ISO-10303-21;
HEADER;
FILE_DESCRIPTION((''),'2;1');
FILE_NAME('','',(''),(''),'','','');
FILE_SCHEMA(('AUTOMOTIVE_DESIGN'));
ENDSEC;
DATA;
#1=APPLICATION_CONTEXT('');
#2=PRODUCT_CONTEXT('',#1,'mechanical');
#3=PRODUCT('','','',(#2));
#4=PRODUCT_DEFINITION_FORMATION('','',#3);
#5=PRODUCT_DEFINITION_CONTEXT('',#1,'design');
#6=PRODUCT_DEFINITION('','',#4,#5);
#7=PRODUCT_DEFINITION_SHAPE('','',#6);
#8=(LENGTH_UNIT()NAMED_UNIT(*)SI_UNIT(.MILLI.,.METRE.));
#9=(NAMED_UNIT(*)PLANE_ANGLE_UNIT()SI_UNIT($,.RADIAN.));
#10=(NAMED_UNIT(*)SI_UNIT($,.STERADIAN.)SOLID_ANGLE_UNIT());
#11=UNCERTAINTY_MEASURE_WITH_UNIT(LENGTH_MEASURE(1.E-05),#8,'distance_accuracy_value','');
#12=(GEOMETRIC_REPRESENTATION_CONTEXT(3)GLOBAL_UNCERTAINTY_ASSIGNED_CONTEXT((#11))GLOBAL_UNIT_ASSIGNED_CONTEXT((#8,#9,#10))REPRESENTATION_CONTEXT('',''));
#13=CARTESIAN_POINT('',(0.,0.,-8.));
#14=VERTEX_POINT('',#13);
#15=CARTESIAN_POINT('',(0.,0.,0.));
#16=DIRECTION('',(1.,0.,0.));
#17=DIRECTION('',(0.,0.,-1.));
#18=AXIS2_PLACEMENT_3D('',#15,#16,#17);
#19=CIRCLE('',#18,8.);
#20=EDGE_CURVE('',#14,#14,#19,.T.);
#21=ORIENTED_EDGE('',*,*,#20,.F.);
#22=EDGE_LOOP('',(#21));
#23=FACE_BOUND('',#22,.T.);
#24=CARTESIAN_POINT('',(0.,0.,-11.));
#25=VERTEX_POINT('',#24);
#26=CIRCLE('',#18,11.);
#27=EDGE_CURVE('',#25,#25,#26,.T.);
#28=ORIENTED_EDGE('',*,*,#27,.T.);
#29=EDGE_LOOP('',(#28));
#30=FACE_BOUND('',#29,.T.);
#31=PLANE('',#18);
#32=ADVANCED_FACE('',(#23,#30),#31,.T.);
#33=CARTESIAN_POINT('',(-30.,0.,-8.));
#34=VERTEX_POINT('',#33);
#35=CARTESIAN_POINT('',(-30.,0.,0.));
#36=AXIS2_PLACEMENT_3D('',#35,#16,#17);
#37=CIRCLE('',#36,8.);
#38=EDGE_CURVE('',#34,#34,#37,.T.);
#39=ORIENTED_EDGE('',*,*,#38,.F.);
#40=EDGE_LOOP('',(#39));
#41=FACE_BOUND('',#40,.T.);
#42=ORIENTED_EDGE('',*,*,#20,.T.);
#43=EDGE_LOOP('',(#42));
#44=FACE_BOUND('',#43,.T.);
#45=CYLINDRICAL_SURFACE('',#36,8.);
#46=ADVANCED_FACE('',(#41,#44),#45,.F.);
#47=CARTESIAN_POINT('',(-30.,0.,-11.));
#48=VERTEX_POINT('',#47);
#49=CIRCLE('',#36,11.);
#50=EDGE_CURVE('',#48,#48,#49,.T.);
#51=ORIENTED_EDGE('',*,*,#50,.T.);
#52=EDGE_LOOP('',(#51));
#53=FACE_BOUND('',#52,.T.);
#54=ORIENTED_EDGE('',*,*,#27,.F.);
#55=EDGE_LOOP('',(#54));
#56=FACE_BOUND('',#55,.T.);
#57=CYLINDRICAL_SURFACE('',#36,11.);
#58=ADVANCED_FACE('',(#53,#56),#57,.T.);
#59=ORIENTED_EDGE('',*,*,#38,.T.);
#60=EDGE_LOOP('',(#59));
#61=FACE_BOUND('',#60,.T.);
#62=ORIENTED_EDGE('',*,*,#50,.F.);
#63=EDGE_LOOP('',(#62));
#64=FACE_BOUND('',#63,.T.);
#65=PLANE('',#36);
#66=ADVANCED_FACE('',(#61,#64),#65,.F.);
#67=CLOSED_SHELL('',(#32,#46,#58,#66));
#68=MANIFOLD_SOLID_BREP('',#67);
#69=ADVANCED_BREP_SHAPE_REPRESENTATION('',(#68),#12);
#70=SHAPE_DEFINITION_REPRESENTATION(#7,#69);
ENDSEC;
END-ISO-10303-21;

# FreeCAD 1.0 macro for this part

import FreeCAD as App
import Part
import Sketcher

V = App.Vector

doc = App.newDocument("Part")
body = doc.addObject("PartDesign::Body", "Body")

# Sketch on YZ plane
sketch1 = body.newObject("Sketcher::SketchObject", "Sketch")
sketch1.AttachmentSupport = (doc.getObject("YZ_Plane"), [""])
sketch1.MapMode = "FlatFace"
sketch1.addGeometry([
    Part.Circle(V(0, 0, 0), V(0, 0, 1), 11),
    Part.Circle(V(0, 0, 0), V(0, 0, 1), 8),
], False)
sketch1.addConstraint([
    Sketcher.Constraint("Coincident", 0, 3, -1, 1),
    Sketcher.Constraint("Coincident", 1, 3, -1, 1),
    Sketcher.Constraint("Diameter", 0, 22.0),
    Sketcher.Constraint("Diameter", 1, 16.0),
])
pad1 = body.newObject("PartDesign::Pad", "Pad")
pad1.Profile = sketch1
pad1.Length = 30
pad1.Reversed = True

doc.recompute()
